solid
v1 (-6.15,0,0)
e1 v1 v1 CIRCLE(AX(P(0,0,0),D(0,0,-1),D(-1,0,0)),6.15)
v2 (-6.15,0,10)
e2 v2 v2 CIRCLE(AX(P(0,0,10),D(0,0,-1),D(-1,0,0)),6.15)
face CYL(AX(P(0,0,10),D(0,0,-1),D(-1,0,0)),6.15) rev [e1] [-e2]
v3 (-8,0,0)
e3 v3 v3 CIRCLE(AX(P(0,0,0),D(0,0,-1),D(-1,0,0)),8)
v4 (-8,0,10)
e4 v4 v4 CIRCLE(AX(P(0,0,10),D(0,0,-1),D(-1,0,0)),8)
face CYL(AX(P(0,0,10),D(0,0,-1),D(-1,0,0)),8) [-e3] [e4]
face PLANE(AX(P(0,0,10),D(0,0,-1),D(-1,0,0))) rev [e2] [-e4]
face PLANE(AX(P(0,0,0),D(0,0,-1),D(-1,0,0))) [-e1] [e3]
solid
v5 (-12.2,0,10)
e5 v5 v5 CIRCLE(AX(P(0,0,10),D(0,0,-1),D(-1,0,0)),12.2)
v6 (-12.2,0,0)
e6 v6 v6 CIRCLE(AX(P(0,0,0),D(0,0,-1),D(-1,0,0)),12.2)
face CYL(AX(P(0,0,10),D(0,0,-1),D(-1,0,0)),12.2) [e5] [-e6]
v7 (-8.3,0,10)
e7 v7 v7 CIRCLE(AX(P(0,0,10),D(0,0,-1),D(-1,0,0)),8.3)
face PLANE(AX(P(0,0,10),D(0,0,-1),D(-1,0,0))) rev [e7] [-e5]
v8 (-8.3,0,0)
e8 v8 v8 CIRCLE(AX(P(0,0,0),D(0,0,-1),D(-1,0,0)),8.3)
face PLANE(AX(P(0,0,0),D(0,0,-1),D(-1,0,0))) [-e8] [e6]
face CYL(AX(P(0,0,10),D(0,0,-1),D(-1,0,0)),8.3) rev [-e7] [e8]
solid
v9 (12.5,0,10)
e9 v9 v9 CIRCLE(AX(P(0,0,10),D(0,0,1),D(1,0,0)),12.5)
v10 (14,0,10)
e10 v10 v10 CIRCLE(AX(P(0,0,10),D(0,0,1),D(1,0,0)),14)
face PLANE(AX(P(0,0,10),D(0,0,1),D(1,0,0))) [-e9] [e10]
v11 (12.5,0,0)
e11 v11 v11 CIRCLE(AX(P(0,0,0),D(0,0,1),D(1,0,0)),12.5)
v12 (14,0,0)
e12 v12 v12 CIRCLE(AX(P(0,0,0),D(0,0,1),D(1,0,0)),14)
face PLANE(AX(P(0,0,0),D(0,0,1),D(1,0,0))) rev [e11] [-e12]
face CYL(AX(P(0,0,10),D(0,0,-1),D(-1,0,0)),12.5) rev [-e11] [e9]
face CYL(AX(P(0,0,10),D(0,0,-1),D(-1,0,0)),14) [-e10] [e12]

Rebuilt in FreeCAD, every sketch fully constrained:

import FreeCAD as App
import Part
import Sketcher
from FreeCAD import Vector

doc = App.newDocument("Part")
body = doc.addObject("PartDesign::Body", "Body")

# Sketch on XY plane
sketch1 = body.newObject("Sketcher::SketchObject", "Sketch")
sketch1.AttachmentSupport = (doc.getObject("XY_Plane"), [""])
sketch1.MapMode = "FlatFace"
sketch1.addGeometry(Part.Circle(Vector(0, 0, 0), Vector(0, 0, 1), 14), False)
sketch1.addGeometry(Part.Circle(Vector(0, 0, 0), Vector(0, 0, 1), 12), False)
sketch1.addConstraint(Sketcher.Constraint("Coincident", 0, 3, -1, 1))
sketch1.addConstraint(Sketcher.Constraint("Coincident", 1, 3, -1, 1))
sketch1.addConstraint(Sketcher.Constraint("Diameter", 0, 28.0))
sketch1.addConstraint(Sketcher.Constraint("Diameter", 1, 25.0))
pad1 = body.newObject("PartDesign::Pad", "Pad")
pad1.Profile = sketch1
pad1.Length = 10
body2 = doc.addObject("PartDesign::Body", "Body001")

# Sketch on XY plane
sketch2 = body2.newObject("Sketcher::SketchObject", "Sketch001")
sketch2.AttachmentSupport = (doc.getObject("XY_Plane001"), [""])
sketch2.MapMode = "FlatFace"
sketch2.addGeometry(Part.Circle(Vector(0, 0, 0), Vector(0, 0, 1), 12), False)
sketch2.addGeometry(Part.Circle(Vector(0, 0, 0), Vector(0, 0, 1), 8), False)
sketch2.addConstraint(Sketcher.Constraint("Coincident", 0, 3, -1, 1))
sketch2.addConstraint(Sketcher.Constraint("Coincident", 1, 3, -1, 1))
sketch2.addConstraint(Sketcher.Constraint("Diameter", 0, 24.4))
sketch2.addConstraint(Sketcher.Constraint("Diameter", 1, 16.6))
pad2 = body2.newObject("PartDesign::Pad", "Pad001")
pad2.Profile = sketch2
pad2.Length = 10
body3 = doc.addObject("PartDesign::Body", "Body002")

# Sketch on XY plane
sketch3 = body3.newObject("Sketcher::SketchObject", "Sketch002")
sketch3.AttachmentSupport = (doc.getObject("XY_Plane002"), [""])
sketch3.MapMode = "FlatFace"
sketch3.addGeometry(Part.Circle(Vector(0, 0, 0), Vector(0, 0, 1), 8), False)
sketch3.addGeometry(Part.Circle(Vector(0, 0, 0), Vector(0, 0, 1), 6), False)
sketch3.addConstraint(Sketcher.Constraint("Coincident", 0, 3, -1, 1))
sketch3.addConstraint(Sketcher.Constraint("Coincident", 1, 3, -1, 1))
sketch3.addConstraint(Sketcher.Constraint("Diameter", 0, 16.0))
sketch3.addConstraint(Sketcher.Constraint("Diameter", 1, 12.3))
pad3 = body3.newObject("PartDesign::Pad", "Pad002")
pad3.Profile = sketch3
pad3.Length = 10

doc.recompute()
